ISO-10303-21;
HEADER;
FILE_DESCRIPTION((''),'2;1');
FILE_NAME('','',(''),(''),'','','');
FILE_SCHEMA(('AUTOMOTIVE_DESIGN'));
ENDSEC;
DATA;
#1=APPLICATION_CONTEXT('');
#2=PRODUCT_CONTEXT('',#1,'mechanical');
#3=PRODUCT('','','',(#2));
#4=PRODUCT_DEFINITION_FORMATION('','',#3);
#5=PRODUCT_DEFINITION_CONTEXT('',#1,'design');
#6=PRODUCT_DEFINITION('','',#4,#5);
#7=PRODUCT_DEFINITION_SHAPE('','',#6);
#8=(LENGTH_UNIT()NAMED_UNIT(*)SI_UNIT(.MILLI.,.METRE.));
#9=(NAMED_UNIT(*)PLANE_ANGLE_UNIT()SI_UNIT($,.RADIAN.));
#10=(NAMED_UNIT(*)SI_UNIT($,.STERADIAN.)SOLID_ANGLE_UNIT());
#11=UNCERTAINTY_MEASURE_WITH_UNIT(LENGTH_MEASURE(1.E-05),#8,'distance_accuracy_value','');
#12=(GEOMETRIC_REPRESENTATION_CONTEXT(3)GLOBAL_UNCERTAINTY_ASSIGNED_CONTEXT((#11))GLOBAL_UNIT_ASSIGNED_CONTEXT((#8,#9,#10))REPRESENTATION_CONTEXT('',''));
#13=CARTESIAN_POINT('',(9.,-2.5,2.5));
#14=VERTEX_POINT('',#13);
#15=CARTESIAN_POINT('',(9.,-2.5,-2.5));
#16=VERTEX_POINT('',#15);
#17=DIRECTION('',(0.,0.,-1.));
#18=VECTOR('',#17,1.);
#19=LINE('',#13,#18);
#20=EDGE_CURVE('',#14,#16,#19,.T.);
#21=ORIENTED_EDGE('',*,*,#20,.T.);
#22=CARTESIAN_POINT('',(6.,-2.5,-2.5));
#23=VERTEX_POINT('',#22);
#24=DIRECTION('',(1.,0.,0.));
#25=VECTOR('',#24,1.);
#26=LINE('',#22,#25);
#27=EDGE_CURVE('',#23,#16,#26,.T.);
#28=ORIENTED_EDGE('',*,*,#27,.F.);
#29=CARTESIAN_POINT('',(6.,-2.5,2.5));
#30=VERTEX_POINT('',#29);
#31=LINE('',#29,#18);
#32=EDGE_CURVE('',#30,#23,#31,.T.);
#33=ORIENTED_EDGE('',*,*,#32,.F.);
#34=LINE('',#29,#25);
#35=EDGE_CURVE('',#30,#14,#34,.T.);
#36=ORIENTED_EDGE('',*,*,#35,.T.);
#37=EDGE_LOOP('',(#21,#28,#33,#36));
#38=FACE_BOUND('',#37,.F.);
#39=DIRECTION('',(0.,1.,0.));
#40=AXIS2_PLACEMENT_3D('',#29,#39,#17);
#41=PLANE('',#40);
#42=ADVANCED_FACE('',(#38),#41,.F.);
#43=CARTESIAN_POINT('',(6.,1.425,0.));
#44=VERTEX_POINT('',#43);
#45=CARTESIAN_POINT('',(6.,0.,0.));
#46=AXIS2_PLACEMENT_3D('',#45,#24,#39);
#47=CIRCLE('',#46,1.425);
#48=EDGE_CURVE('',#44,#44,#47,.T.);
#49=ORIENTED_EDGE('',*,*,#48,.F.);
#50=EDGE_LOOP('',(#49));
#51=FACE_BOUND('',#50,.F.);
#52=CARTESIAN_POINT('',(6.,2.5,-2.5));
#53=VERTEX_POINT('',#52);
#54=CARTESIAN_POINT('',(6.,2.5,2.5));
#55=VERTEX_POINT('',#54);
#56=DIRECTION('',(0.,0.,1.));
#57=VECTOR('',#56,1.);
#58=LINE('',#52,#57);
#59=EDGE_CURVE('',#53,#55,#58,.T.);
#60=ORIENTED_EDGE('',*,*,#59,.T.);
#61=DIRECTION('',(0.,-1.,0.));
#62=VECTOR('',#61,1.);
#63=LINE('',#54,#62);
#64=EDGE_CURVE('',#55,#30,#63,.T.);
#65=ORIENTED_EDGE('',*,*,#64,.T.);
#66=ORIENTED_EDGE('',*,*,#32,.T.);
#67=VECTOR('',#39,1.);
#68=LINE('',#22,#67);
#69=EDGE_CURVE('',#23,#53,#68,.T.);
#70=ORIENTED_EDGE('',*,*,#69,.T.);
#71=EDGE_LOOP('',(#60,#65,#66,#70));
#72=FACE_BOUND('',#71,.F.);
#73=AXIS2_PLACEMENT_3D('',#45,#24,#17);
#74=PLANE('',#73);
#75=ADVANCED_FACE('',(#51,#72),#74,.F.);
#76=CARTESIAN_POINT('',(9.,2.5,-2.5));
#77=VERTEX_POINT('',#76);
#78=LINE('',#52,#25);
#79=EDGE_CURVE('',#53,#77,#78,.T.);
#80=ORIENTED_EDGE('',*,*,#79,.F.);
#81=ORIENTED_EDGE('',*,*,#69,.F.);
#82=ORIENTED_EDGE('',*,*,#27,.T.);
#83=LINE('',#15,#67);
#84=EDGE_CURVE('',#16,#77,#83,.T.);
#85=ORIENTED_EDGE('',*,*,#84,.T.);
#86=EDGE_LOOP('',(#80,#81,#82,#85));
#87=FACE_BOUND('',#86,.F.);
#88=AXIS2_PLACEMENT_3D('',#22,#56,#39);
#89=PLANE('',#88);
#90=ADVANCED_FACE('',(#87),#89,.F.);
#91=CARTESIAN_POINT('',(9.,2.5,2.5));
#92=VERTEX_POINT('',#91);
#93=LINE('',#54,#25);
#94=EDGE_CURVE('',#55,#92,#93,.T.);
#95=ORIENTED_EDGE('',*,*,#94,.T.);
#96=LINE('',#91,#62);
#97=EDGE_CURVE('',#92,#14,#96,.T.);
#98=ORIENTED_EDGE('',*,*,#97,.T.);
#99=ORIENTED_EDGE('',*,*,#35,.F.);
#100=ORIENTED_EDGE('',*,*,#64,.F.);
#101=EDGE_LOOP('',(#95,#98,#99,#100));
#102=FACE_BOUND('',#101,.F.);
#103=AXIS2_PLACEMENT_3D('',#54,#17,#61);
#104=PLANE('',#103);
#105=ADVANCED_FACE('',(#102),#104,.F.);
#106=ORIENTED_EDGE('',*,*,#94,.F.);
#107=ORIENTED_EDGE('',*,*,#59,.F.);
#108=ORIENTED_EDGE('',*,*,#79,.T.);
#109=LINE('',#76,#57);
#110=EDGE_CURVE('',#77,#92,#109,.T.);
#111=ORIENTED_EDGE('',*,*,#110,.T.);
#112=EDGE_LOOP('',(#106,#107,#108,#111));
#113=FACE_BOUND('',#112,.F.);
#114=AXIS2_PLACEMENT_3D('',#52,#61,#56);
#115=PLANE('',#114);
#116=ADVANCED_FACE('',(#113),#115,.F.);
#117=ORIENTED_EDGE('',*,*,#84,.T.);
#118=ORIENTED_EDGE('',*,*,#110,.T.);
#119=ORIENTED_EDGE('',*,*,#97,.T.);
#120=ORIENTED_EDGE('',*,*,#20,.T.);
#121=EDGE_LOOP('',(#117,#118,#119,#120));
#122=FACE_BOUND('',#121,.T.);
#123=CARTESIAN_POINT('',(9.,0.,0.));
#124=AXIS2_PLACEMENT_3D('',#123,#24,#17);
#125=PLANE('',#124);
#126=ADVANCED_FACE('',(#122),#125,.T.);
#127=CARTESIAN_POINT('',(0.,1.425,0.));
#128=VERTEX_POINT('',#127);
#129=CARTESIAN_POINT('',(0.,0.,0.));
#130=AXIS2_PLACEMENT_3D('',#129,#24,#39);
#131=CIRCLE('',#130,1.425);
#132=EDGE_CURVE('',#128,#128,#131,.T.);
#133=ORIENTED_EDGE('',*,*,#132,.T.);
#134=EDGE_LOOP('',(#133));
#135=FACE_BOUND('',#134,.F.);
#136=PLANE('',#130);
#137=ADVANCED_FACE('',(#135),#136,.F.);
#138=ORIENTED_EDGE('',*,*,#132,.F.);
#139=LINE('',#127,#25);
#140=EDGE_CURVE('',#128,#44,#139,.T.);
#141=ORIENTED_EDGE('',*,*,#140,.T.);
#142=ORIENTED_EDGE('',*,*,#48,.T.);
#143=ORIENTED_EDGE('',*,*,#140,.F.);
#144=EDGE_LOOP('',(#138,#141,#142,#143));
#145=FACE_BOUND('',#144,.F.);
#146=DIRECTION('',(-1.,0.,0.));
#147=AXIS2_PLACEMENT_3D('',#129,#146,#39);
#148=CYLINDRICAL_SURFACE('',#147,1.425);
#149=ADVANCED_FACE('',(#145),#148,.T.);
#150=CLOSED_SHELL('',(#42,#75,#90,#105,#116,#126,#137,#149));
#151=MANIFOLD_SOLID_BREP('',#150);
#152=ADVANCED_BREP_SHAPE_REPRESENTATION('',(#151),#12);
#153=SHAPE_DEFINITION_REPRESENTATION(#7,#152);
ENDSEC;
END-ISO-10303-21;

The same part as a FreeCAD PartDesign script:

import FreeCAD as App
import Part
import Sketcher
Q = App.Units.Quantity

doc = App.newDocument("Part")
params = doc.addObject("Spreadsheet::Sheet", "Params")
for row, (alias, value) in enumerate([
    ("sketch1_diameter", "2.85 mm"),
    ("pad1_length", "6 mm"),
    ("sketch2_width", "5 mm"),
    ("pad2_length", "3 mm"),
], start=1):
    params.set(f"A{row}", alias)
    params.set(f"B{row}", "=" + value)
    params.setAlias(f"B{row}", alias)

body = doc.addObject("PartDesign::Body", "Body")

# Sketch on YZ plane
sketch1 = doc.addObject("Sketcher::SketchObject", "Sketch")
body.addObject(sketch1)
sketch1.AttachmentSupport = (doc.YZ_Plane, [""])
sketch1.MapMode = "FlatFace"
sketch1.addGeometry(Part.Circle(App.Vector(0, 0, 0), App.Vector(0, 0, 1), 1.4), False)
sketch1.addConstraint([
    Sketcher.Constraint("Coincident", 0, 3, -1, 1),
    Sketcher.Constraint("Diameter", 0, Q("2.85 mm")),
])
sketch1.setExpression("Constraints[1]", "Params.sketch1_diameter")
pad1 = doc.addObject("PartDesign::Pad", "Pad")
body.addObject(pad1)
pad1.Profile = sketch1
pad1.setExpression("Length", "Params.pad1_length")

# Sketch on YZ plane
sketch2 = doc.addObject("Sketcher::SketchObject", "Sketch001")
body.addObject(sketch2)
sketch2.AttachmentSupport = (doc.YZ_Plane, [""])
sketch2.MapMode = "FlatFace"
sketch2.AttachmentOffset = App.Placement(App.Vector(0, 0, 6), App.Rotation())
sketch2.addGeometry([
    Part.LineSegment(App.Vector(-2, -2, 0), App.Vector(2, -2, 0)),
    Part.LineSegment(App.Vector(2, -2, 0), App.Vector(2, 2, 0)),
    Part.LineSegment(App.Vector(2, 2, 0), App.Vector(-2, 2, 0)),
    Part.LineSegment(App.Vector(-2, 2, 0), App.Vector(-2, -2, 0)),
], False)
sketch2.addConstraint([
    Sketcher.Constraint("Coincident", 0, 2, 1, 1),
    Sketcher.Constraint("Coincident", 1, 2, 2, 1),
    Sketcher.Constraint("Coincident", 2, 2, 3, 1),
    Sketcher.Constraint("Coincident", 3, 2, 0, 1),
    Sketcher.Constraint("Horizontal", 0),
    Sketcher.Constraint("Vertical", 1),
    Sketcher.Constraint("Horizontal", 2),
    Sketcher.Constraint("Vertical", 3),
    Sketcher.Constraint("Symmetric", 0, 2, 2, 2, -1, 1),
    Sketcher.Constraint("Equal", 2, 1),
    Sketcher.Constraint("DistanceX", 0, 1, 0, 2, Q("5 mm")),
])
sketch2.setExpression("Constraints[10]", "Params.sketch2_width")
pad2 = doc.addObject("PartDesign::Pad", "Pad001")
body.addObject(pad2)
pad2.Profile = sketch2
pad2.setExpression("Length", "Params.pad2_length")

doc.recompute()
